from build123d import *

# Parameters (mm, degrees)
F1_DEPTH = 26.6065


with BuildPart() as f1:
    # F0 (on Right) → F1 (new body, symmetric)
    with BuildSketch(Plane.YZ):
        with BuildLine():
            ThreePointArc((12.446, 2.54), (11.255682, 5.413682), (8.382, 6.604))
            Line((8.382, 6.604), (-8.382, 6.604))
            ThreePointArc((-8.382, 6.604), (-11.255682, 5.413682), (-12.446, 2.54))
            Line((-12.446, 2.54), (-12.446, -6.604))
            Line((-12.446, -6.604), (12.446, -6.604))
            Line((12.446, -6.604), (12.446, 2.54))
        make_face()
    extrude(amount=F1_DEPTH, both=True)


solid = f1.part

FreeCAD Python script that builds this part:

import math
import FreeCAD as App
import Part
import Sketcher
Q = App.Units.Quantity

doc = App.newDocument("Part")
body = doc.addObject("PartDesign::Body", "Body")

sketch1 = body.newObject("Sketcher::SketchObject", "Sketch")
sketch1.AttachmentSupport = (doc.getObject("YZ_Plane"), [""])
sketch1.MapMode = "FlatFace"
sketch1.addGeometry([
    Part.ArcOfCircle(Part.Circle(App.Vector(8.4, 2.5, 0), App.Vector(0, 0, 1), 4.1), math.radians(0), math.radians(90)),
    Part.LineSegment(App.Vector(8.4, 6.6, 0), App.Vector(-8.4, 6.6, 0)),
    Part.ArcOfCircle(Part.Circle(App.Vector(-8.4, 2.5, 0), App.Vector(0, 0, 1), 4.1), math.radians(90), math.radians(180)),
    Part.LineSegment(App.Vector(-12.4, 2.5, 0), App.Vector(-12.4, -6.6, 0)),
    Part.LineSegment(App.Vector(-12.4, -6.6, 0), App.Vector(12.4, -6.6, 0)),
    Part.LineSegment(App.Vector(12.4, -6.6, 0), App.Vector(12.4, 2.5, 0)),
], False)
sketch1.addConstraint([
    Sketcher.Constraint("Tangent", 0, 2, 1, 1),
    Sketcher.Constraint("Tangent", 1, 2, 2, 1),
    Sketcher.Constraint("Tangent", 2, 2, 3, 1),
    Sketcher.Constraint("Coincident", 3, 2, 4, 1),
    Sketcher.Constraint("Coincident", 4, 2, 5, 1),
    Sketcher.Constraint("Tangent", 5, 2, 0, 1),
    Sketcher.Constraint("Horizontal", 1),
    Sketcher.Constraint("Vertical", 3),
    Sketcher.Constraint("Horizontal", 4),
    Sketcher.Constraint("Vertical", 5),
    Sketcher.Constraint("Equal", 0, 2),
    Sketcher.Constraint("Radius", 0, Q("0.16 in")),
    Sketcher.Constraint("DistanceX", 1, 2, 1, 1, Q("0.66 in")),
    Sketcher.Constraint("DistanceY", 3, 2, 3, 1, Q("0.36 in")),
    Sketcher.Constraint("DistanceY", -1, 1, 0, 3, Q("0.1 in")),
    Sketcher.Constraint("DistanceX", -1, 1, 0, 3, Q("0.33 in")),
])
pad1 = body.newObject("PartDesign::Pad", "Pad")
pad1.Profile = sketch1
pad1.Length = Q("2.095 in")
pad1.Midplane = True

doc.recompute()
